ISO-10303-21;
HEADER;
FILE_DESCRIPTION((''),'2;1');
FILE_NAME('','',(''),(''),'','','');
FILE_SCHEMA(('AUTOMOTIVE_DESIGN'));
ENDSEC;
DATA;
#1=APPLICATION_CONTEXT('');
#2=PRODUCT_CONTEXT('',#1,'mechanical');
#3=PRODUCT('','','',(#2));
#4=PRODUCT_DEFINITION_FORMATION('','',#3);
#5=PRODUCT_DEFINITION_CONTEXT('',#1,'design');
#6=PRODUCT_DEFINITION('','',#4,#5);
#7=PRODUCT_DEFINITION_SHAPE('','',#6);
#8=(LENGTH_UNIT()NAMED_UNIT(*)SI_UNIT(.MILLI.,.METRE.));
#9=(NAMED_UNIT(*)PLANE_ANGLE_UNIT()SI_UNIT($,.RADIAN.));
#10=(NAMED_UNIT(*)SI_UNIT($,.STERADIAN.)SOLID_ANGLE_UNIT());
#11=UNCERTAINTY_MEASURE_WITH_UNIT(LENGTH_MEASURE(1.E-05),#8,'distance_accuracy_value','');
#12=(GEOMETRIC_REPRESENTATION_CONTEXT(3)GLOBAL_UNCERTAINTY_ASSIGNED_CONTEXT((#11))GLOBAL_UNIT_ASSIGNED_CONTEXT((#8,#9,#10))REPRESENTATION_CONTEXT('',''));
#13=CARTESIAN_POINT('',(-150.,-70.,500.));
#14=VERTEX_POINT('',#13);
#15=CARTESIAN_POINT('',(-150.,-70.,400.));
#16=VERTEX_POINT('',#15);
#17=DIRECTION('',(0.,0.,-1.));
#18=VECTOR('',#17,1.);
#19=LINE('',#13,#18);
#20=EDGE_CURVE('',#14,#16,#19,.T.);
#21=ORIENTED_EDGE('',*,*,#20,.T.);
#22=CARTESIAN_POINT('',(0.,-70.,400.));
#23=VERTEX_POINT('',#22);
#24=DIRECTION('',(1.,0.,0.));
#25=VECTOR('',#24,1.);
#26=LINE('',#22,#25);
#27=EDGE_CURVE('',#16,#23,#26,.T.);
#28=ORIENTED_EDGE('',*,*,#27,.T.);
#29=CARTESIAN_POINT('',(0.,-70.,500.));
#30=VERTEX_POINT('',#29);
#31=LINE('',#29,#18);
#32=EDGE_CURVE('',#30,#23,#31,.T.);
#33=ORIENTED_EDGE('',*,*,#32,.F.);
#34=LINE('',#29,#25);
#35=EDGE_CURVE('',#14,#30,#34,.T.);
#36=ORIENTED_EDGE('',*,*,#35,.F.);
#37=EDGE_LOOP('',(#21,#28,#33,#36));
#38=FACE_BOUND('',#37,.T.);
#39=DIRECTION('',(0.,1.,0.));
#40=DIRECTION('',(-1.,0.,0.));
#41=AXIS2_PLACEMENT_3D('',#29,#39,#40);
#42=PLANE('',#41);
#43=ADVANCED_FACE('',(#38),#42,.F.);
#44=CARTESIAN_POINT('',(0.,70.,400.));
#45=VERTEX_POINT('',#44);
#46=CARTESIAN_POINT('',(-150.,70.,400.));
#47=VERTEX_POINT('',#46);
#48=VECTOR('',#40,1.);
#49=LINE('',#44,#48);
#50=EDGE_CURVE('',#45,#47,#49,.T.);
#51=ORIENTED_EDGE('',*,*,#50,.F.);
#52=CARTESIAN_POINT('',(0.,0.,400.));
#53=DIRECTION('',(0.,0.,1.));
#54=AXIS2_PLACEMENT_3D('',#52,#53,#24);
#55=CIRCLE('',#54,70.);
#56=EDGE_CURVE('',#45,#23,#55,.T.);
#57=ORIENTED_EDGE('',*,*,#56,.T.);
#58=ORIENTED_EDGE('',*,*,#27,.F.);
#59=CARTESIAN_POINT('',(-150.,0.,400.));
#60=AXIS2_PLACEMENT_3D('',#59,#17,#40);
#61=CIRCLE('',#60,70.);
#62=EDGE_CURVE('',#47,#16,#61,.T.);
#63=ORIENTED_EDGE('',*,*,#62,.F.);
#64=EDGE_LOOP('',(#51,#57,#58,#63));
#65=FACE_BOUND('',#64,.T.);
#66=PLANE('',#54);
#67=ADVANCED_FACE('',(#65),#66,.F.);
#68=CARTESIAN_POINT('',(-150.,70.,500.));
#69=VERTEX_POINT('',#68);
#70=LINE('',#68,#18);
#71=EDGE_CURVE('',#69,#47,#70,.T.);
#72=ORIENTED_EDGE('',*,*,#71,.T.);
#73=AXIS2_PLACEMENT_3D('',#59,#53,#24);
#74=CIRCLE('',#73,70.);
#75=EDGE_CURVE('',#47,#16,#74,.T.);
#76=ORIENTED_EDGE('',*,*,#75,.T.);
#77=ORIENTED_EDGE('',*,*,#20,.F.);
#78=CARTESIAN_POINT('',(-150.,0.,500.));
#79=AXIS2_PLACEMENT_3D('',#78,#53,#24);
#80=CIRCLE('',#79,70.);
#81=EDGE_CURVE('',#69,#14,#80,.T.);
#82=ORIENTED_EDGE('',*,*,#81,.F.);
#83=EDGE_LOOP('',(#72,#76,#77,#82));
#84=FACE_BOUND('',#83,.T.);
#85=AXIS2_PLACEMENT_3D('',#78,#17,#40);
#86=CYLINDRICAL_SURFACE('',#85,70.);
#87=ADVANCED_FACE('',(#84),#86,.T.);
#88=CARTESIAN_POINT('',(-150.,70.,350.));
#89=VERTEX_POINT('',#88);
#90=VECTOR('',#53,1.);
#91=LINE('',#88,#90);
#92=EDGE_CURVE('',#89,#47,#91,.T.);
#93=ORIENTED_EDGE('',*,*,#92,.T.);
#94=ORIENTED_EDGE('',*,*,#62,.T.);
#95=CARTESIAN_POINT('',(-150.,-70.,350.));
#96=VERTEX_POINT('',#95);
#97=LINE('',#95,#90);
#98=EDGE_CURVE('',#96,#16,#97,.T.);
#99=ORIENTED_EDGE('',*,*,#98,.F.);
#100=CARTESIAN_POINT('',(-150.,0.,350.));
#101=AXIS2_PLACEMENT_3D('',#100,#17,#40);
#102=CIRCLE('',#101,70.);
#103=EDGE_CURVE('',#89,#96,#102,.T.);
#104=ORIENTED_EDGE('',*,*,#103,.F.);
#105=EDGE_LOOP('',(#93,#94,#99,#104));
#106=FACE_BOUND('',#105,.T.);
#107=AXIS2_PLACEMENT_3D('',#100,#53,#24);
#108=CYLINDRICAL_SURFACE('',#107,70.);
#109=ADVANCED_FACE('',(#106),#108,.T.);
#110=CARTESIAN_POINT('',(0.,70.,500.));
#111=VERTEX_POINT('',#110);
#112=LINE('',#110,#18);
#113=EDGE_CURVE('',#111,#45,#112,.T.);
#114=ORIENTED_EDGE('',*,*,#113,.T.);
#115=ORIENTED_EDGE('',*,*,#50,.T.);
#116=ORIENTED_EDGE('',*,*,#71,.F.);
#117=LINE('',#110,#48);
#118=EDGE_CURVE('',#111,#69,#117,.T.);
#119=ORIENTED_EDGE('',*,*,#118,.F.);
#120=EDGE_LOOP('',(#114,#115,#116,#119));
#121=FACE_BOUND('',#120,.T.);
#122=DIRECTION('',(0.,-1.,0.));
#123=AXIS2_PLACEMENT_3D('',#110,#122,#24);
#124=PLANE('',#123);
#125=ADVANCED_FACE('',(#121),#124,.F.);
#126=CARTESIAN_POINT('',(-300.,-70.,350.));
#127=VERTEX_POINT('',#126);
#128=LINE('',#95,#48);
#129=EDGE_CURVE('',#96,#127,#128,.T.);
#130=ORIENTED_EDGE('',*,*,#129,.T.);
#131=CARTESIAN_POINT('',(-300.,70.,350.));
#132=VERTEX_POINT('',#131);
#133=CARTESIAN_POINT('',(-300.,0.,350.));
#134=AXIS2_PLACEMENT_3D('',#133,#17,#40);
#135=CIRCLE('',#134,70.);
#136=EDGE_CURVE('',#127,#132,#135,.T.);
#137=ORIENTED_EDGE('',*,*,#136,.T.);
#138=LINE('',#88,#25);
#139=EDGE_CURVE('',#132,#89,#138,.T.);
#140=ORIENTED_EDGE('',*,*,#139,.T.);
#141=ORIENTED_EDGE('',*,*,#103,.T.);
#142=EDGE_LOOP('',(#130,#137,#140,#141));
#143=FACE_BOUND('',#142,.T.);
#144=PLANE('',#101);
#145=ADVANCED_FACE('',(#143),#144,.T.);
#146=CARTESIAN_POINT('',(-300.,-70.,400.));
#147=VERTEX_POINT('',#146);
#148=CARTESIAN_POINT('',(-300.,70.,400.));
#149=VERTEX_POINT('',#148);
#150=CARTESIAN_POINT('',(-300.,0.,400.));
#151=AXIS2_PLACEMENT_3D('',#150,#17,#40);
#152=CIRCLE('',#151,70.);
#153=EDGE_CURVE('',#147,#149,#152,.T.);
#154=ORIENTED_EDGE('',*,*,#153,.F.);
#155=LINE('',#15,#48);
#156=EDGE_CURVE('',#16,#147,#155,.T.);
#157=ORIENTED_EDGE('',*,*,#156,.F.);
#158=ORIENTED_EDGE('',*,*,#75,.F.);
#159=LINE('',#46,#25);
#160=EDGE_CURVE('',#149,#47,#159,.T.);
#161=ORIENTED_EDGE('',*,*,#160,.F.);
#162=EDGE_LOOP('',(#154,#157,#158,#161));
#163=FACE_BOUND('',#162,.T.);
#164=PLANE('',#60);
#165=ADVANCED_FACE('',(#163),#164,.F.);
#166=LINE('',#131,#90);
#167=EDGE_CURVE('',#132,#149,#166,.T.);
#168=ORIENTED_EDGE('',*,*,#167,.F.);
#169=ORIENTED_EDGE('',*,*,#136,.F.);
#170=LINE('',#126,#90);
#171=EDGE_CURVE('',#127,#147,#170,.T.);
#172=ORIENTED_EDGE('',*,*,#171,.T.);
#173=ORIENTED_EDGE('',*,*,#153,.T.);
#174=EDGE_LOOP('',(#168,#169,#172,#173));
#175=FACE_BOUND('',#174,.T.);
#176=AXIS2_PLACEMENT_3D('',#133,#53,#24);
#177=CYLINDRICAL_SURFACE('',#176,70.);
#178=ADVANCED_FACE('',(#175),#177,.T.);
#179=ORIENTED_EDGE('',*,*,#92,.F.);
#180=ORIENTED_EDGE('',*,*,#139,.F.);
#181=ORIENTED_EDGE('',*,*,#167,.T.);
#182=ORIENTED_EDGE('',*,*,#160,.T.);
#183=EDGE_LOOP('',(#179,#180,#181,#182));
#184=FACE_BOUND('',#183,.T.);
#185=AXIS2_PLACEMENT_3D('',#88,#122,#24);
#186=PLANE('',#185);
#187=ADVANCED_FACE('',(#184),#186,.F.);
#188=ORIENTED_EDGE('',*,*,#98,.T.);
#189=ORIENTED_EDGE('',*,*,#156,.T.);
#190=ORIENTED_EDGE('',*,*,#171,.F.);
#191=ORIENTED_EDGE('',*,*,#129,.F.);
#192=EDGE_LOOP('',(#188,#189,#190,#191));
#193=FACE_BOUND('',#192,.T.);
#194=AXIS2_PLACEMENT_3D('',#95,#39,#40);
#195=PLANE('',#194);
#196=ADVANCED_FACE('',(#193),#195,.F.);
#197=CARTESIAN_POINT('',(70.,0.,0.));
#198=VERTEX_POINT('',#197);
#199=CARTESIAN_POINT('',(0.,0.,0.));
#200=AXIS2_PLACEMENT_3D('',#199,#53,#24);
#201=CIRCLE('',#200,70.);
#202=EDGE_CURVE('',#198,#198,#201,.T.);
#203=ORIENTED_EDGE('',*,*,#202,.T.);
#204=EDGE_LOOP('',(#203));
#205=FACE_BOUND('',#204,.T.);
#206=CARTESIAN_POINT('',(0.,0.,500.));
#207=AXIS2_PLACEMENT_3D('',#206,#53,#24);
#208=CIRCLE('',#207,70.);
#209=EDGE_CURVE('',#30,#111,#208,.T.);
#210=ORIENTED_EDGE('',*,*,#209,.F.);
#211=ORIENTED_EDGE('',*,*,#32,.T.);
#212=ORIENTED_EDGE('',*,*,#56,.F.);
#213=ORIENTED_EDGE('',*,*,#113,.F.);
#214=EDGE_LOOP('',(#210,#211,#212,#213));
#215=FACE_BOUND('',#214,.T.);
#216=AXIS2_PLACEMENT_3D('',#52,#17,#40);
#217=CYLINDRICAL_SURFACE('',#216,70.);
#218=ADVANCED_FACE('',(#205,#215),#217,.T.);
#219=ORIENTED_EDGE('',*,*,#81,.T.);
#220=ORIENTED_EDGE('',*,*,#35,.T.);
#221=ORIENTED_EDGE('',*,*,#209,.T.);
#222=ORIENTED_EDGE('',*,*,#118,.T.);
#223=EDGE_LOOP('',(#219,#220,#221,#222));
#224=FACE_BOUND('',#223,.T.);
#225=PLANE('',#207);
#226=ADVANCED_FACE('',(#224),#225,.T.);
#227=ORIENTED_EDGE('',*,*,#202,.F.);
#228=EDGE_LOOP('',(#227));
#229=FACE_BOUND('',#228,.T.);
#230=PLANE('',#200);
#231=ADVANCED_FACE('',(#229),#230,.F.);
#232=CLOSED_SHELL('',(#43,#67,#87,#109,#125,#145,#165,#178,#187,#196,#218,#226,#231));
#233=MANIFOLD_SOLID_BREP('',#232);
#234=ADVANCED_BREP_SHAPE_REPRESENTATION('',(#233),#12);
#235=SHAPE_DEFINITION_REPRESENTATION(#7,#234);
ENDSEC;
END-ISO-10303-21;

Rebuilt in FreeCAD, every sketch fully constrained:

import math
import FreeCAD as App
import Part
import Sketcher
from FreeCAD import Vector

doc = App.newDocument("Part")
body = doc.addObject("PartDesign::Body", "Body")

sketch1 = doc.addObject("Sketcher::SketchObject", "Sketch")
body.addObject(sketch1)
sketch1.AttachmentSupport = (doc.XY_Plane, [""])
sketch1.MapMode = "FlatFace"
sketch1.addGeometry(Part.Circle(Vector(0, 0, 0), Vector(0, 0, 1), 70), False)
sketch1.addConstraint([
    Sketcher.Constraint("Coincident", 0, 3, -1, 1),
    Sketcher.Constraint("Diameter", 0, 140.0),
])
pad1 = doc.addObject("PartDesign::Pad", "Pad")
body.addObject(pad1)
pad1.Profile = sketch1
pad1.Length = 400

sketch2 = doc.addObject("Sketcher::SketchObject", "Sketch001")
body.addObject(sketch2)
sketch2.AttachmentSupport = (doc.XY_Plane, [""])
sketch2.MapMode = "FlatFace"
sketch2.AttachmentOffset = App.Placement(Vector(0, 0, 400), App.Rotation())
sketch2.addGeometry([
    Part.LineSegment(Vector(-150, -70, 0), Vector(0, -70, 0)),
    Part.ArcOfCircle(Part.Circle(Vector(0, 0, 0), Vector(0, 0, 1), 70), math.radians(-90), math.radians(90)),
    Part.LineSegment(Vector(0, 70, 0), Vector(-150, 70, 0)),
    Part.ArcOfCircle(Part.Circle(Vector(-150, 0, 0), Vector(0, 0, 1), 70), math.radians(90), math.radians(270)),
], False)
sketch2.addConstraint([
    Sketcher.Constraint("Tangent", 0, 2, 1, 1),
    Sketcher.Constraint("Tangent", 1, 2, 2, 1),
    Sketcher.Constraint("Tangent", 2, 2, 3, 1),
    Sketcher.Constraint("Tangent", 3, 2, 0, 1),
    Sketcher.Constraint("Horizontal", 0),
    Sketcher.Constraint("Horizontal", 2),
    Sketcher.Constraint("Coincident", 1, 3, -1, 1),
    Sketcher.Constraint("Radius", 1, 70.0),
    Sketcher.Constraint("DistanceX", 0, 1, 0, 2, 150.0),
])
pad2 = doc.addObject("PartDesign::Pad", "Pad001")
body.addObject(pad2)
pad2.Profile = sketch2
pad2.Length = 100

sketch3 = doc.addObject("Sketcher::SketchObject", "Sketch002")
body.addObject(sketch3)
sketch3.AttachmentSupport = (doc.XY_Plane, [""])
sketch3.MapMode = "FlatFace"
sketch3.AttachmentOffset = App.Placement(Vector(0, 0, 400), App.Rotation())
sketch3.addGeometry([
    Part.LineSegment(Vector(-300, 70, 0), Vector(-150, 70, 0)),
    Part.ArcOfCircle(Part.Circle(Vector(-150, 0, 0), Vector(0, 0, 1), 70), math.radians(-90), math.radians(90)),
    Part.LineSegment(Vector(-150, -70, 0), Vector(-300, -70, 0)),
    Part.ArcOfCircle(Part.Circle(Vector(-300, 0, 0), Vector(0, 0, 1), 70), math.radians(90), math.radians(270)),
], False)
sketch3.addConstraint([
    Sketcher.Constraint("Tangent", 0, 2, 1, 2),
    Sketcher.Constraint("Tangent", 1, 1, 2, 1),
    Sketcher.Constraint("Tangent", 2, 2, 3, 2),
    Sketcher.Constraint("Tangent", 3, 1, 0, 1),
    Sketcher.Constraint("Horizontal", 0),
    Sketcher.Constraint("Horizontal", 2),
    Sketcher.Constraint("PointOnObject", 1, 3, -1),
    Sketcher.Constraint("Radius", 1, 70.0),
    Sketcher.Constraint("DistanceX", 0, 1, 0, 2, 150.0),
    Sketcher.Constraint("DistanceX", 1, 3, -1, 1, 150.0),
])
pad3 = doc.addObject("PartDesign::Pad", "Pad002")
body.addObject(pad3)
pad3.Profile = sketch3
pad3.Length = 50
pad3.Reversed = True

doc.recompute()
